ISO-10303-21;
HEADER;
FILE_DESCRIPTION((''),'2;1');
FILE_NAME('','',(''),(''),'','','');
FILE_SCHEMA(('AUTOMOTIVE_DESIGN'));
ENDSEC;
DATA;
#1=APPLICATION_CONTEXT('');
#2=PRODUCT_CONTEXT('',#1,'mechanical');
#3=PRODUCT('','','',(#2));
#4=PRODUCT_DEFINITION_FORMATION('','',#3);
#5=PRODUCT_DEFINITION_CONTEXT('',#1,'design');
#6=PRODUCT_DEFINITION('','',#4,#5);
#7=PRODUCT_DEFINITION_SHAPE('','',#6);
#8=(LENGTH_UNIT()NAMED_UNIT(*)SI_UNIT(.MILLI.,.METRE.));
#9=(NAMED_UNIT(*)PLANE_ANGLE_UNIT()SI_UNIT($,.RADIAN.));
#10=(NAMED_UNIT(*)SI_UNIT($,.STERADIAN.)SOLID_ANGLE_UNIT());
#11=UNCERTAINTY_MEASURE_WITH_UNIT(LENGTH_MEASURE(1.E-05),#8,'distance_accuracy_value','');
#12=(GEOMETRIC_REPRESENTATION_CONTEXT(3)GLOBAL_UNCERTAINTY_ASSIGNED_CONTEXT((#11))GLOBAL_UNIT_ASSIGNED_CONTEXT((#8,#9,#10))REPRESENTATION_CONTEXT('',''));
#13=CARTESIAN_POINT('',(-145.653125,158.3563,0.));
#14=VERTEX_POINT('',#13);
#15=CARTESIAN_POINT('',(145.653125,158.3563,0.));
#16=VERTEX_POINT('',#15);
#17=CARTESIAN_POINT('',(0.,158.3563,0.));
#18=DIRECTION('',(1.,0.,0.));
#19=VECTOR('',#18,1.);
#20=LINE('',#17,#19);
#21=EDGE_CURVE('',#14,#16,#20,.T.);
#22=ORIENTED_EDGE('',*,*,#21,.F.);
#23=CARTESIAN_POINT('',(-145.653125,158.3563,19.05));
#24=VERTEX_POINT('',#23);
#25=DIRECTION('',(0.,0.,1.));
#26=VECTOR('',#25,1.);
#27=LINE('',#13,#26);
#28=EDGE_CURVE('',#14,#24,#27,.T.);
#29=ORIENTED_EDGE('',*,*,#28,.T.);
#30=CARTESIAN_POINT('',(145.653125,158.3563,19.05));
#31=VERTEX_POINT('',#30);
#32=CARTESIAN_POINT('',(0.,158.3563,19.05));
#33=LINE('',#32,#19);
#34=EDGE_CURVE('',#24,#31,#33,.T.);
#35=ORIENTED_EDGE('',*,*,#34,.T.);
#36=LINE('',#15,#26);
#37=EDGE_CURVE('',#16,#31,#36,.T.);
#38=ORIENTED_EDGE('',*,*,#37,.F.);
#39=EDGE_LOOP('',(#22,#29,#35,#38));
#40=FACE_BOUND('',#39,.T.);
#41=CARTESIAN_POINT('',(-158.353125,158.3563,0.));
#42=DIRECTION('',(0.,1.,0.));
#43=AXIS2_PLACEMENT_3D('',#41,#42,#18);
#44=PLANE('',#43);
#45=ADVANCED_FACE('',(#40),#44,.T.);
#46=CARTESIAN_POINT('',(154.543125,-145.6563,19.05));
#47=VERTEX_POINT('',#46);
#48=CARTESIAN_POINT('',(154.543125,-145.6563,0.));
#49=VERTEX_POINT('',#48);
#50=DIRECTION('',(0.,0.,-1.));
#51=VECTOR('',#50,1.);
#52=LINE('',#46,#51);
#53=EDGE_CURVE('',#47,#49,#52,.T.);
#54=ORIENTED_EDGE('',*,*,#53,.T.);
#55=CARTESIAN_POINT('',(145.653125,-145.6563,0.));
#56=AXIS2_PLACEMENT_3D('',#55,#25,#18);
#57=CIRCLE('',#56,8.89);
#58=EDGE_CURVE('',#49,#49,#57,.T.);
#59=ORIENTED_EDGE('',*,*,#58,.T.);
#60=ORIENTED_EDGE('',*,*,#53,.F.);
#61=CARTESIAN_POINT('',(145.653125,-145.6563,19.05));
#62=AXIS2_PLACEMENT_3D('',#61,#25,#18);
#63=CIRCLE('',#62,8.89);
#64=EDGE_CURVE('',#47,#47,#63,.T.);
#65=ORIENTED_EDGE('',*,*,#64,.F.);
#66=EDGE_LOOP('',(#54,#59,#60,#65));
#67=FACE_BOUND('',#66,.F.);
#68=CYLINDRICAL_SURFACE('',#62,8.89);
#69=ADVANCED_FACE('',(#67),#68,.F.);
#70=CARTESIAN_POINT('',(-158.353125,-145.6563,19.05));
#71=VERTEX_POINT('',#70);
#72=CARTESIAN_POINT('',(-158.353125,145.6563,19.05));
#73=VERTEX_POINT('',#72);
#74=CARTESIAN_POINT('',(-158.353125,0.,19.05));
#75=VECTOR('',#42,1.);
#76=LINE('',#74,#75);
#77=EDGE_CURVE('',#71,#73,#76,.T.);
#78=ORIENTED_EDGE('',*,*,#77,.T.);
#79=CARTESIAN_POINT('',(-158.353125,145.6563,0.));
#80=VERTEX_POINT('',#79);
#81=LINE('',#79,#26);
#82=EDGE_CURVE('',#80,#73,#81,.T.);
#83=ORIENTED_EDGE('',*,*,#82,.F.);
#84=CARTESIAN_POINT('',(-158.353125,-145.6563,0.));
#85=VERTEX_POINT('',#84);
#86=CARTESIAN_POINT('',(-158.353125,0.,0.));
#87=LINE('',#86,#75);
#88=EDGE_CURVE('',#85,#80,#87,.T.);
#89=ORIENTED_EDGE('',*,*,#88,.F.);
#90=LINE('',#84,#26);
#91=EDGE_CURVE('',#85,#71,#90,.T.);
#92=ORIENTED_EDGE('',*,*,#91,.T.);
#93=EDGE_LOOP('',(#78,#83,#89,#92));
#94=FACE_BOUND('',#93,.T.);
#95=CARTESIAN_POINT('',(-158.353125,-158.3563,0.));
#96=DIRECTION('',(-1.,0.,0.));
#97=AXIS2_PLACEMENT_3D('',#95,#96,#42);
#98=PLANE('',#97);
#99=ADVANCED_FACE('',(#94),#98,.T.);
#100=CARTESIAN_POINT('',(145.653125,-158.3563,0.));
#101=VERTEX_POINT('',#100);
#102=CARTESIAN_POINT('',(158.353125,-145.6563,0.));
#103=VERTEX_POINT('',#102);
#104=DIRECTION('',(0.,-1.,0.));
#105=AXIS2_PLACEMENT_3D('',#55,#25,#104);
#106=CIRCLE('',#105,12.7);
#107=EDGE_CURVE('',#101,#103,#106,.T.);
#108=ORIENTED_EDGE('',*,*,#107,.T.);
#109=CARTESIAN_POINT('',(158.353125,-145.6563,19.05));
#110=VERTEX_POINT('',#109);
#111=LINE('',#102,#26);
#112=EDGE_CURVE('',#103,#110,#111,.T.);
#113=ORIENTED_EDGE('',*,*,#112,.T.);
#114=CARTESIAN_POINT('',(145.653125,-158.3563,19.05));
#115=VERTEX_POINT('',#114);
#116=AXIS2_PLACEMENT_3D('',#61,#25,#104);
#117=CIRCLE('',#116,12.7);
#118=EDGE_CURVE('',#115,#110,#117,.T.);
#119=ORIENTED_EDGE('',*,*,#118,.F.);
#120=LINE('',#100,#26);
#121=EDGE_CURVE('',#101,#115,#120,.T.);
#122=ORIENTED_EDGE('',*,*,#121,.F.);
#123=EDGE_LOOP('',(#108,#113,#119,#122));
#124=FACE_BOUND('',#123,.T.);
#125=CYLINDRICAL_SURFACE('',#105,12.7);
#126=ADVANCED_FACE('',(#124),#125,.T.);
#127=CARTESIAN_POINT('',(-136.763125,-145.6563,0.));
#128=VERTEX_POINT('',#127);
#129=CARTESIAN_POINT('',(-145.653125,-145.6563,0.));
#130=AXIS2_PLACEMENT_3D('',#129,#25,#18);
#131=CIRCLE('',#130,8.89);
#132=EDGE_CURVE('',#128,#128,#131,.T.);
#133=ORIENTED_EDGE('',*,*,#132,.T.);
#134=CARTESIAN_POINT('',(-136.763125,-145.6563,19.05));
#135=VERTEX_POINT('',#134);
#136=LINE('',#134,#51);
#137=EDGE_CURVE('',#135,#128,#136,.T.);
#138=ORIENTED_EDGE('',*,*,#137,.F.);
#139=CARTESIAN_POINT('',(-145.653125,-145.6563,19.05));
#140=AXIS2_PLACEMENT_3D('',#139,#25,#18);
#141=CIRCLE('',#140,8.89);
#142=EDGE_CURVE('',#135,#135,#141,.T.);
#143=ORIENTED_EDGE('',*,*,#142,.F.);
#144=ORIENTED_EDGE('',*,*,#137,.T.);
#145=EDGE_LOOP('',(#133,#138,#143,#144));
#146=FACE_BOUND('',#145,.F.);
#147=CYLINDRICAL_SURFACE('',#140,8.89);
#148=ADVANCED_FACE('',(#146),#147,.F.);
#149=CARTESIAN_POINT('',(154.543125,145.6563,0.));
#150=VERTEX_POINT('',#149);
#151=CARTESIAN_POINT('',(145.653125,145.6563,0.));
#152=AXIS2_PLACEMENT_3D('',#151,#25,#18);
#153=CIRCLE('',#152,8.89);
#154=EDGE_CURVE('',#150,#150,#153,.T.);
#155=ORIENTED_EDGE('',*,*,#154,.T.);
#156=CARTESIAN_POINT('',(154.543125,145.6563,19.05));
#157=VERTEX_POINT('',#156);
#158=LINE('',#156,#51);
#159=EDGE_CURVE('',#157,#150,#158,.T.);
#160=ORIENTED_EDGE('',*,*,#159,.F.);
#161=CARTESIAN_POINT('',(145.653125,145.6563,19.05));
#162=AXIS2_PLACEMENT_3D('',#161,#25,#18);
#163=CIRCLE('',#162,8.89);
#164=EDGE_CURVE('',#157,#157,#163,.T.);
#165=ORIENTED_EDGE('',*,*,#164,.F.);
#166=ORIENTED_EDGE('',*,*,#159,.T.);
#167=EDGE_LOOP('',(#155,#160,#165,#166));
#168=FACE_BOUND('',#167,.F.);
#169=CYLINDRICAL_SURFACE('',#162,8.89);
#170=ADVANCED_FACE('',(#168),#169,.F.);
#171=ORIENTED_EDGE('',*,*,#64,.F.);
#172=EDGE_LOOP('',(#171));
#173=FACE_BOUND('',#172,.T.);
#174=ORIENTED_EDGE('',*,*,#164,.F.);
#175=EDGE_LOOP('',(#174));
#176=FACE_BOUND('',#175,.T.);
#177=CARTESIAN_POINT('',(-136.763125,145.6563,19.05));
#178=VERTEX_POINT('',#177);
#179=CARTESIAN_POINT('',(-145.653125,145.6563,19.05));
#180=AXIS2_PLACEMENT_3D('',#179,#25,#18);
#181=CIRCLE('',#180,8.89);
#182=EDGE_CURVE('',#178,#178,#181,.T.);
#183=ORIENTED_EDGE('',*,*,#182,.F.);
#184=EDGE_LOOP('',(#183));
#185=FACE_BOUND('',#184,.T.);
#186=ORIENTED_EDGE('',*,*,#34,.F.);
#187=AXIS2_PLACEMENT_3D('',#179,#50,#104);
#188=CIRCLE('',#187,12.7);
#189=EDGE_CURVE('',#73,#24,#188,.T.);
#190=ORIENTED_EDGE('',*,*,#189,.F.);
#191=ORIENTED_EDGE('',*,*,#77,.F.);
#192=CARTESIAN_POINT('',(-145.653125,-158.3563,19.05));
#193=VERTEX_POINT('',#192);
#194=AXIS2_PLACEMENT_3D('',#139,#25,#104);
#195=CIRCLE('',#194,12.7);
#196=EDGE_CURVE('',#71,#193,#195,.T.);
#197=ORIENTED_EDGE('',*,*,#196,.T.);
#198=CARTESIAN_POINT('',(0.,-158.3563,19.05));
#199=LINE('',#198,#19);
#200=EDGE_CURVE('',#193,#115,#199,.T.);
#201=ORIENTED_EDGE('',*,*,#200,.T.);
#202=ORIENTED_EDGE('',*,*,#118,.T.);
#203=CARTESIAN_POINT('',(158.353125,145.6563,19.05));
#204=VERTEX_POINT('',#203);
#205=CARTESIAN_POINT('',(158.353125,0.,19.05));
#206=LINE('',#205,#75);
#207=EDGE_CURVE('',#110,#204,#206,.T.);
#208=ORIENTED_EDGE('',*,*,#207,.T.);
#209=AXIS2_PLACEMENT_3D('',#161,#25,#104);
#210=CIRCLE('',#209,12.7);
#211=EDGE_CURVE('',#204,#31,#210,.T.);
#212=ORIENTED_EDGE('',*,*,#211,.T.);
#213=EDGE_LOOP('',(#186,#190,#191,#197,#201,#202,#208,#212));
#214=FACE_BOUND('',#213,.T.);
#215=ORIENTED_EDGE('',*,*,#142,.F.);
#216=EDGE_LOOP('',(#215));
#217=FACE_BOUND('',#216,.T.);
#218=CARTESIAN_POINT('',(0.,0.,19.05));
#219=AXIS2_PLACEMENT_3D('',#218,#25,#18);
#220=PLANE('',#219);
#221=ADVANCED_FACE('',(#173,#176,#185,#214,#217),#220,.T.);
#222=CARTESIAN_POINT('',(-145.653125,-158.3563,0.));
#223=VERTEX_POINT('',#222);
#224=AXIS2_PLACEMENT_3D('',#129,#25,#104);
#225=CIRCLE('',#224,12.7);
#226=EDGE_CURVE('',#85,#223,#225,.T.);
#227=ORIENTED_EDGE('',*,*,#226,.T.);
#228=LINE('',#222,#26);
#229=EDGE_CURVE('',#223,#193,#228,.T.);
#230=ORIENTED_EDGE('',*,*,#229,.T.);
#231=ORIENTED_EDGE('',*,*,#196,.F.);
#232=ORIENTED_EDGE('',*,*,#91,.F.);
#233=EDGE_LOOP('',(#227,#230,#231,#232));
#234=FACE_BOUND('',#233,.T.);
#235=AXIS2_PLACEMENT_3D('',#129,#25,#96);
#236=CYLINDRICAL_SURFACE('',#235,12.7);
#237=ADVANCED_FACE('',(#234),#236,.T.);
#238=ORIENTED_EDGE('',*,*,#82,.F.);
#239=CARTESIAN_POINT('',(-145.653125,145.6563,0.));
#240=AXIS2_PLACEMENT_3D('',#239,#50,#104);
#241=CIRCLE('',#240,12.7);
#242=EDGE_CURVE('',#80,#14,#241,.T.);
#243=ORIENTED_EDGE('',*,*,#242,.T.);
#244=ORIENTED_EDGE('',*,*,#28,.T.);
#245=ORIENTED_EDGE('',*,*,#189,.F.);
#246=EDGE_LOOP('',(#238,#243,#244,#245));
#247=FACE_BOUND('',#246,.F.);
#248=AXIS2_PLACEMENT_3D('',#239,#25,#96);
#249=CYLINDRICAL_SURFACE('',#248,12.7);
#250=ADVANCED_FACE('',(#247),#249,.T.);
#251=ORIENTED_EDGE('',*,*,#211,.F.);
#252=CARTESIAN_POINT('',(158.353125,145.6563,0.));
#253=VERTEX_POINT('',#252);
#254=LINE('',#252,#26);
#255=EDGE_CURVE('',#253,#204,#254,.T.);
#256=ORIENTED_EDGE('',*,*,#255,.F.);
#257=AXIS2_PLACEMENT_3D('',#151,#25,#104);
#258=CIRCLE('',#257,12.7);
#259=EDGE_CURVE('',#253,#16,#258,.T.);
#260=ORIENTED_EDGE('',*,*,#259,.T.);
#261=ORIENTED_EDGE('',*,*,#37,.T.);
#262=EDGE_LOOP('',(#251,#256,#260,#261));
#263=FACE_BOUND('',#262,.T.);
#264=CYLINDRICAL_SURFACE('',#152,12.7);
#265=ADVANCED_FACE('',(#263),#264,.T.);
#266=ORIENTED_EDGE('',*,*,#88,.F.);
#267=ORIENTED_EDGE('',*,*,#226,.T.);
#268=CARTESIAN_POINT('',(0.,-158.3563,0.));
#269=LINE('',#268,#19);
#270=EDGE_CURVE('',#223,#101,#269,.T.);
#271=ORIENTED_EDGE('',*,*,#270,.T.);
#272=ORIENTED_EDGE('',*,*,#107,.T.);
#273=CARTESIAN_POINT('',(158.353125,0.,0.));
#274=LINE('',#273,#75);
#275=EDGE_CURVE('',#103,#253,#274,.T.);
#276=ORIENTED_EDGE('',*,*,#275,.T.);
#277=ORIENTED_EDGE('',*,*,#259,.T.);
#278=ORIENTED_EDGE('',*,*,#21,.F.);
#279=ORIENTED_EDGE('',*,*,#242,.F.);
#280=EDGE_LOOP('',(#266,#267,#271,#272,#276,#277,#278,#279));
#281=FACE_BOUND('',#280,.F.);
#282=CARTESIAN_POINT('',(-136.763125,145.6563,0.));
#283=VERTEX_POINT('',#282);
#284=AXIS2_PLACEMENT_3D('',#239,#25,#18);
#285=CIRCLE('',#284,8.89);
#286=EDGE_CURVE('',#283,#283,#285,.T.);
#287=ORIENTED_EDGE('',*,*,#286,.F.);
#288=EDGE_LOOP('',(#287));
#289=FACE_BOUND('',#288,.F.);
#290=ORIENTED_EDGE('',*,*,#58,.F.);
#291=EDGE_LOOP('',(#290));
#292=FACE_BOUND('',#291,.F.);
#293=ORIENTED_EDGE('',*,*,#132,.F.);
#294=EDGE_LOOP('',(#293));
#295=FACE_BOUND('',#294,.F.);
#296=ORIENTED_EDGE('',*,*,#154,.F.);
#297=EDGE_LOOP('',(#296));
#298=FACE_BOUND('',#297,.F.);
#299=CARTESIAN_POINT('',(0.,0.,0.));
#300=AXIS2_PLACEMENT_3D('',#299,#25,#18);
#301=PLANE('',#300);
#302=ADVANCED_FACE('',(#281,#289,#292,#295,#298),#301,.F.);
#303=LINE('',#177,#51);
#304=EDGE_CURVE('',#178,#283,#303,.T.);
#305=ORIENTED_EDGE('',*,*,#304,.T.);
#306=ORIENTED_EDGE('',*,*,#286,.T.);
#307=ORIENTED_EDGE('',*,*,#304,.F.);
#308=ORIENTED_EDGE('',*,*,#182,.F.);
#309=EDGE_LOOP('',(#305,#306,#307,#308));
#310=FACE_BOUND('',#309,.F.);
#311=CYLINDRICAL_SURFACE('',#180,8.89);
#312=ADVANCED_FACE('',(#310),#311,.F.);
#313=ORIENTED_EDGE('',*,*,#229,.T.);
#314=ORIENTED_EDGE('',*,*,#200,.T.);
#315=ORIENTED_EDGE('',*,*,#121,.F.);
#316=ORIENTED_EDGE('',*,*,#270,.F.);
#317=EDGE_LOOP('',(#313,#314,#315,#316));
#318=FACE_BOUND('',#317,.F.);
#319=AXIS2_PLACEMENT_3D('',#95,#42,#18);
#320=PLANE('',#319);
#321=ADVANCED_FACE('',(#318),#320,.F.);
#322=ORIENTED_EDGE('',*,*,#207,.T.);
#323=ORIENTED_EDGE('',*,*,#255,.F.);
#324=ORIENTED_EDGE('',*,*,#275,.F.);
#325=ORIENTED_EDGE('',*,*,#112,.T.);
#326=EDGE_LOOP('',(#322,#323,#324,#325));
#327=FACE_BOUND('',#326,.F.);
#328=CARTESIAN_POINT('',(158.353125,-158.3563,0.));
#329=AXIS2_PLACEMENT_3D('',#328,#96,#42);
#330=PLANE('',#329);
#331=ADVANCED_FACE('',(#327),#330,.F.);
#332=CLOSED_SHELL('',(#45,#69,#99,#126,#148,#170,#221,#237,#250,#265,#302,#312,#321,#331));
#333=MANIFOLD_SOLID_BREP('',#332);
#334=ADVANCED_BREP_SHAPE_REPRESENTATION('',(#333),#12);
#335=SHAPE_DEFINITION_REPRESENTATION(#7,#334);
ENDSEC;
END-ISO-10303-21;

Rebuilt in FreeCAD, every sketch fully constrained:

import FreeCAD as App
import Part
import Sketcher
Q = App.Units.Quantity


def edges_at(feature, points):
    """Names of the edges that pass closest to the given points."""
    edges = feature.Shape.Edges
    near = lambda p: min(range(len(edges)), key=lambda i: edges[i].distToShape(Part.Vertex(*p))[0])
    return sorted({f"Edge{near(p) + 1}" for p in points})

doc = App.newDocument("Part")
body = doc.addObject("PartDesign::Body", "Body")

sketch1 = doc.addObject("Sketcher::SketchObject", "Sketch")
body.addObject(sketch1)
sketch1.AttachmentSupport = (doc.XY_Plane, [""])
sketch1.MapMode = "FlatFace"
sketch1.addGeometry([
    Part.LineSegment(App.Vector(-158, 158, 0), App.Vector(-158, -158, 0)),
    Part.LineSegment(App.Vector(-158, -158, 0), App.Vector(158, -158, 0)),
    Part.LineSegment(App.Vector(158, -158, 0), App.Vector(158, 158, 0)),
    Part.LineSegment(App.Vector(158, 158, 0), App.Vector(-158, 158, 0)),
], False)
sketch1.addConstraint([
    Sketcher.Constraint("Coincident", 0, 2, 1, 1),
    Sketcher.Constraint("Coincident", 1, 2, 2, 1),
    Sketcher.Constraint("Coincident", 2, 2, 3, 1),
    Sketcher.Constraint("Coincident", 3, 2, 0, 1),
    Sketcher.Constraint("Vertical", 0),
    Sketcher.Constraint("Horizontal", 1),
    Sketcher.Constraint("Vertical", 2),
    Sketcher.Constraint("Horizontal", 3),
    Sketcher.Constraint("Symmetric", 0, 2, 2, 2, -1, 1),
    Sketcher.Constraint("DistanceX", 1, 1, 1, 2, Q("12.46875 in")),
    Sketcher.Constraint("DistanceY", 0, 2, 0, 1, Q("12.469 in")),
])
pad1 = doc.addObject("PartDesign::Pad", "Pad")
body.addObject(pad1)
pad1.Profile = sketch1
pad1.Length = Q("0.75 in")
doc.recompute()

fillet = doc.addObject("PartDesign::Fillet", "Fillet")
body.addObject(fillet)
fillet.Base = (pad1, edges_at(pad1, [
    (-158.353, -158.356, 9.525),
    (-158.353, 158.356, 9.525),
    (158.353, 158.356, 9.525),
    (158.353, -158.356, 9.525),
]))
fillet.Radius = Q("0.5 in")

sketch2 = doc.addObject("Sketcher::SketchObject", "Sketch001")
body.addObject(sketch2)
sketch2.AttachmentSupport = (doc.XY_Plane, [""])
sketch2.MapMode = "FlatFace"
sketch2.AttachmentOffset = App.Placement(App.Vector(0, 0, 0.75 * 25.4), App.Rotation())
sketch2.addGeometry([
    Part.Circle(App.Vector(-146, 146, 0), App.Vector(0, 0, 1), 9),
    Part.Circle(App.Vector(146, 146, 0), App.Vector(0, 0, 1), 9),
    Part.Circle(App.Vector(146, -146, 0), App.Vector(0, 0, 1), 9),
    Part.Circle(App.Vector(-146, -146, 0), App.Vector(0, 0, 1), 9),
], False)
sketch2.addConstraint([
    Sketcher.Constraint("Equal", 0, 1),
    Sketcher.Constraint("Equal", 1, 2),
    Sketcher.Constraint("Equal", 2, 3),
    Sketcher.Constraint("Symmetric", 0, 3, 2, 3, -1, 1),
    Sketcher.Constraint("Symmetric", 1, 3, 3, 3, -1, 1),
    Sketcher.Constraint("Symmetric", 0, 3, 1, 3, -2),
    Sketcher.Constraint("Diameter", 0, Q("0.7 in")),
    Sketcher.Constraint("DistanceX", 0, 3, -1, 1, Q("5.734375 in")),
    Sketcher.Constraint("DistanceY", 2, 3, 1, 3, Q("11.469 in")),
])
pocket1 = doc.addObject("PartDesign::Pocket", "Pocket")
body.addObject(pocket1)
pocket1.Profile = sketch2
pocket1.Length = Q("1 in")

doc.recompute()
